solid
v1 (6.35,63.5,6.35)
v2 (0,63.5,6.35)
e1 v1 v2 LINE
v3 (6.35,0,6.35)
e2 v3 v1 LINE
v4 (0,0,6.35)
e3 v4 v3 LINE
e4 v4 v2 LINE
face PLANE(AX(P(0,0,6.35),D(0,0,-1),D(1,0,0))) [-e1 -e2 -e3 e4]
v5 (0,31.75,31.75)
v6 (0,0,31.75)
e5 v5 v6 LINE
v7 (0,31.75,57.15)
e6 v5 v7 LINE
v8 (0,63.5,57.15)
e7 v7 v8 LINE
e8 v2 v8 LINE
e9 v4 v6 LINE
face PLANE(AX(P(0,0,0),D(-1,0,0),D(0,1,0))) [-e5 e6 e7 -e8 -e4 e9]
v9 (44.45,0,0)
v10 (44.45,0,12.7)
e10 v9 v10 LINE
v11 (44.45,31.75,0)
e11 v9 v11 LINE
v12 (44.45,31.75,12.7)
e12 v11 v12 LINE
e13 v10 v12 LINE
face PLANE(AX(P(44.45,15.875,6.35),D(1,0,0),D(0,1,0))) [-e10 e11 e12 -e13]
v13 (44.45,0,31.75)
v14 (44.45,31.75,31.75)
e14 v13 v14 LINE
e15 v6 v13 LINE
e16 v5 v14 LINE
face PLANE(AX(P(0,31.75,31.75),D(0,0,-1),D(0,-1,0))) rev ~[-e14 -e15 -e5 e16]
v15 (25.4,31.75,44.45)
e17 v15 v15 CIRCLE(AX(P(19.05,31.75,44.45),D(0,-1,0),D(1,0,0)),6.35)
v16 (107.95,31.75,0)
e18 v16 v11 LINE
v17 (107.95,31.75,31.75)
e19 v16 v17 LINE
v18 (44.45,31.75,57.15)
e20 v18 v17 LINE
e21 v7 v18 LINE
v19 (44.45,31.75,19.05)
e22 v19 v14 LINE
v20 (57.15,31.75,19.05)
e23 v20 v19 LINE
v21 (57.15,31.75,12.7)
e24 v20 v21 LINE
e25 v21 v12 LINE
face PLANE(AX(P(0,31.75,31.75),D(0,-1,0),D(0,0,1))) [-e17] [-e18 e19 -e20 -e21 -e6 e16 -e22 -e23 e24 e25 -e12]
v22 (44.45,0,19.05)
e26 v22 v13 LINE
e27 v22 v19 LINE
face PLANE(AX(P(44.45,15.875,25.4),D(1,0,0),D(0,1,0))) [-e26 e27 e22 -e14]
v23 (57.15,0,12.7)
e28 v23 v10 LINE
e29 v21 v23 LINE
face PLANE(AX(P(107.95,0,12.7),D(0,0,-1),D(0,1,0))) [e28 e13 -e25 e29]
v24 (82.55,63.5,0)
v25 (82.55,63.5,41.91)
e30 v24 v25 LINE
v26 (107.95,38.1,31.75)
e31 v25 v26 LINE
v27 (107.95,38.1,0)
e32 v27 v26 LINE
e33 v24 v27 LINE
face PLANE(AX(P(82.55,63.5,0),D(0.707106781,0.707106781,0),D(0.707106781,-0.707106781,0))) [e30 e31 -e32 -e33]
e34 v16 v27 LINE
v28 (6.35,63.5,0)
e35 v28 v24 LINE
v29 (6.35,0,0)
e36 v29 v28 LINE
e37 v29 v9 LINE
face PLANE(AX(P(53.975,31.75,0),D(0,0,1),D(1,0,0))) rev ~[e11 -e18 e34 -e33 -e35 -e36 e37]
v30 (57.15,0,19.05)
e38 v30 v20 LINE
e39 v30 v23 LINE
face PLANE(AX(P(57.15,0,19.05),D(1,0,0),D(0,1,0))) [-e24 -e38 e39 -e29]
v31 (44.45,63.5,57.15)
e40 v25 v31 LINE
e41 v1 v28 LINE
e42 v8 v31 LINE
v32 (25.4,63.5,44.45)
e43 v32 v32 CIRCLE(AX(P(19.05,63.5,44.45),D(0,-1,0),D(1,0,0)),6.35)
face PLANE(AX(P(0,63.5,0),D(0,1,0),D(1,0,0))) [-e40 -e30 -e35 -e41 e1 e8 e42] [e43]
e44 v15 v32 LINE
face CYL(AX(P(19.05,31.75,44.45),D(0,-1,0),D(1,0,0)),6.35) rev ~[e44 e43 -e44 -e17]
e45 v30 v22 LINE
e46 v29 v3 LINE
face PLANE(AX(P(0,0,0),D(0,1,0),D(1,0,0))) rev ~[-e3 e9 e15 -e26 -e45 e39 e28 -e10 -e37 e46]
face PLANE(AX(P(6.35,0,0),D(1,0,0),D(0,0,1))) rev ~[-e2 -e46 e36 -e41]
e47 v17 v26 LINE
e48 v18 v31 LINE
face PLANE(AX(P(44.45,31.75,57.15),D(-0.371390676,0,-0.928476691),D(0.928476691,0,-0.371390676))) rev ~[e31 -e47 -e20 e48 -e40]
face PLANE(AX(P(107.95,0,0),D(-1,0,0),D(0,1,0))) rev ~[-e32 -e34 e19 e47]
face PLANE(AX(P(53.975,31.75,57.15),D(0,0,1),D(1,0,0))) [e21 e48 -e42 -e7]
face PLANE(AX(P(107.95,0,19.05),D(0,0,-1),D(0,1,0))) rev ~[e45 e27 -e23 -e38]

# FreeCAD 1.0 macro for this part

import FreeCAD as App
import Part
import Sketcher
from FreeCAD import Vector
Q = App.Units.Quantity

doc = App.newDocument("Part")
body = doc.addObject("PartDesign::Body", "Body")

sketch1 = body.newObject("Sketcher::SketchObject", "Sketch")
sketch1.AttachmentSupport = (doc.getObject("XY_Plane"), [""])
sketch1.MapMode = "FlatFace"
sketch1.addGeometry([
    Part.LineSegment(Vector(0, 63.5, 0), Vector(0, 0, 0)),
    Part.LineSegment(Vector(0, 0, 0), Vector(107.95, 0, 0)),
    Part.LineSegment(Vector(107.95, 0, 0), Vector(107.95, 63.5, 0)),
    Part.LineSegment(Vector(107.95, 63.5, 0), Vector(0, 63.5, 0)),
], False)
sketch1.addConstraint([
    Sketcher.Constraint("Coincident", 0, 2, 1, 1),
    Sketcher.Constraint("Coincident", 1, 2, 2, 1),
    Sketcher.Constraint("Coincident", 2, 2, 3, 1),
    Sketcher.Constraint("Coincident", 3, 2, 0, 1),
    Sketcher.Constraint("Vertical", 0),
    Sketcher.Constraint("Horizontal", 1),
    Sketcher.Constraint("Vertical", 2),
    Sketcher.Constraint("Horizontal", 3),
    Sketcher.Constraint("Coincident", 0, 2, -1, 1),
    Sketcher.Constraint("DistanceY", 0, 2, 0, 1, Q("2.5 in")),
    Sketcher.Constraint("DistanceX", 1, 1, 1, 2, Q("4.25 in")),
])
pad1 = body.newObject("PartDesign::Pad", "Pad")
pad1.Profile = sketch1
pad1.Length = Q("2.25 in")

sketch2 = body.newObject("Sketcher::SketchObject", "Sketch001")
sketch2.AttachmentSupport = (doc.getObject("YZ_Plane"), [""])
sketch2.MapMode = "FlatFace"
sketch2.addGeometry([
    Part.LineSegment(Vector(31.75, 57.15, 0), Vector(31.75, 31.75, 0)),
    Part.LineSegment(Vector(31.75, 31.75, 0), Vector(0, 31.75, 0)),
    Part.LineSegment(Vector(0, 31.75, 0), Vector(0, 57.15, 0)),
    Part.LineSegment(Vector(0, 57.15, 0), Vector(31.75, 57.15, 0)),
], False)
sketch2.addConstraint([
    Sketcher.Constraint("Coincident", 0, 2, 1, 1),
    Sketcher.Constraint("Coincident", 1, 2, 2, 1),
    Sketcher.Constraint("Coincident", 2, 2, 3, 1),
    Sketcher.Constraint("Coincident", 3, 2, 0, 1),
    Sketcher.Constraint("Vertical", 0),
    Sketcher.Constraint("Horizontal", 1),
    Sketcher.Constraint("Vertical", 2),
    Sketcher.Constraint("Horizontal", 3),
    Sketcher.Constraint("PointOnObject", 1, 2, -2),
    Sketcher.Constraint("DistanceY", 0, 2, 0, 1, Q("1 in")),
    Sketcher.Constraint("DistanceX", 1, 2, 1, 1, Q("1.25 in")),
    Sketcher.Constraint("DistanceY", -1, 1, 0, 2, Q("1.25 in")),
])
pocket1 = body.newObject("PartDesign::Pocket", "Pocket")
pocket1.Profile = sketch2
pocket1.Type = "ThroughAll"
pocket1.Reversed = True

sketch3 = body.newObject("Sketcher::SketchObject", "Sketch002")
sketch3.AttachmentSupport = (doc.getObject("YZ_Plane"), [""])
sketch3.MapMode = "FlatFace"
sketch3.AttachmentOffset = App.Placement(Vector(0, 0, 4.25 * 25.4), App.Rotation())
sketch3.addGeometry([
    Part.LineSegment(Vector(0, 31.75, 0), Vector(0, 19.05, 0)),
    Part.LineSegment(Vector(0, 19.05, 0), Vector(31.75, 19.05, 0)),
    Part.LineSegment(Vector(31.75, 19.05, 0), Vector(31.75, 31.75, 0)),
    Part.LineSegment(Vector(31.75, 31.75, 0), Vector(0, 31.75, 0)),
    Part.LineSegment(Vector(0, 12.7, 0), Vector(0, 0, 0)),
    Part.LineSegment(Vector(0, 0, 0), Vector(31.75, 0, 0)),
    Part.LineSegment(Vector(31.75, 0, 0), Vector(31.75, 12.7, 0)),
    Part.LineSegment(Vector(31.75, 12.7, 0), Vector(0, 12.7, 0)),
], False)
sketch3.addConstraint([
    Sketcher.Constraint("Coincident", 0, 2, 1, 1),
    Sketcher.Constraint("Coincident", 1, 2, 2, 1),
    Sketcher.Constraint("Coincident", 2, 2, 3, 1),
    Sketcher.Constraint("Coincident", 3, 2, 0, 1),
    Sketcher.Constraint("Coincident", 4, 2, 5, 1),
    Sketcher.Constraint("Coincident", 5, 2, 6, 1),
    Sketcher.Constraint("Coincident", 6, 2, 7, 1),
    Sketcher.Constraint("Coincident", 7, 2, 4, 1),
    Sketcher.Constraint("Vertical", 0),
    Sketcher.Constraint("Horizontal", 1),
    Sketcher.Constraint("Vertical", 2),
    Sketcher.Constraint("Horizontal", 3),
    Sketcher.Constraint("Vertical", 4),
    Sketcher.Constraint("Horizontal", 5),
    Sketcher.Constraint("Vertical", 6),
    Sketcher.Constraint("Horizontal", 7),
    Sketcher.Constraint("Coincident", 4, 2, -1, 1),
    Sketcher.Constraint("PointOnObject", 0, 2, -2),
    Sketcher.Constraint("Vertical", 2, 2, 5, 2),
    Sketcher.Constraint("Equal", 2, 4),
    Sketcher.Constraint("DistanceY", 0, 2, 0, 1, Q("0.5 in")),
    Sketcher.Constraint("DistanceX", 1, 1, 1, 2, Q("1.25 in")),
    Sketcher.Constraint("DistanceY", -1, 1, 0, 2, Q("0.75 in")),
])
pocket2 = body.newObject("PartDesign::Pocket", "Pocket001")
pocket2.Profile = sketch3
pocket2.Length = Q("2.5 in")

sketch4 = body.newObject("Sketcher::SketchObject", "Sketch003")
sketch4.AttachmentSupport = (doc.getObject("XY_Plane"), [""])
sketch4.MapMode = "FlatFace"
sketch4.AttachmentOffset = App.Placement(Vector(0, 0, 0.75 * 25.4), App.Rotation())
sketch4.addGeometry([
    Part.LineSegment(Vector(57.15, 31.75, 0), Vector(57.15, 0, 0)),
    Part.LineSegment(Vector(57.15, 0, 0), Vector(107.95, 0, 0)),
    Part.LineSegment(Vector(107.95, 0, 0), Vector(107.95, 31.75, 0)),
    Part.LineSegment(Vector(107.95, 31.75, 0), Vector(57.15, 31.75, 0)),
], False)
sketch4.addConstraint([
    Sketcher.Constraint("Coincident", 0, 2, 1, 1),
    Sketcher.Constraint("Coincident", 1, 2, 2, 1),
    Sketcher.Constraint("Coincident", 2, 2, 3, 1),
    Sketcher.Constraint("Coincident", 3, 2, 0, 1),
    Sketcher.Constraint("Vertical", 0),
    Sketcher.Constraint("Horizontal", 1),
    Sketcher.Constraint("Vertical", 2),
    Sketcher.Constraint("Horizontal", 3),
    Sketcher.Constraint("PointOnObject", 0, 2, -1),
    Sketcher.Constraint("DistanceX", 1, 1, 1, 2, Q("2 in")),
    Sketcher.Constraint("DistanceY", 0, 2, 0, 1, Q("1.25 in")),
    Sketcher.Constraint("DistanceX", -1, 1, 0, 2, Q("2.25 in")),
])
pocket3 = body.newObject("PartDesign::Pocket", "Pocket002")
pocket3.Profile = sketch4
pocket3.Length = Q("1 in")

sketch5 = body.newObject("Sketcher::SketchObject", "Sketch004")
sketch5.AttachmentSupport = (doc.getObject("XZ_Plane"), [""])
sketch5.MapMode = "FlatFace"
sketch5.AttachmentOffset = App.Placement(Vector(0, 0, -1.25 * 25.4), App.Rotation())
sketch5.addGeometry(Part.Circle(Vector(19.05, 44.45, 0), Vector(0, 0, 1), 6.35), False)
sketch5.addConstraint([
    Sketcher.Constraint("Diameter", 0, Q("0.5 in")),
    Sketcher.Constraint("DistanceX", -1, 1, 0, 3, Q("0.75 in")),
    Sketcher.Constraint("DistanceY", -1, 1, 0, 3, Q("1.75 in")),
])
pocket4 = body.newObject("PartDesign::Pocket", "Pocket003")
pocket4.Profile = sketch5
pocket4.Type = "ThroughAll"

sketch6 = body.newObject("Sketcher::SketchObject", "Sketch005")
sketch6.AttachmentSupport = (doc.getObject("XZ_Plane"), [""])
sketch6.MapMode = "FlatFace"
sketch6.addGeometry([
    Part.LineSegment(Vector(0, 6.35, 0), Vector(0, 0, 0)),
    Part.LineSegment(Vector(0, 0, 0), Vector(6.35, 0, 0)),
    Part.LineSegment(Vector(6.35, 0, 0), Vector(6.35, 6.35, 0)),
    Part.LineSegment(Vector(6.35, 6.35, 0), Vector(0, 6.35, 0)),
], False)
sketch6.addConstraint([
    Sketcher.Constraint("Coincident", 0, 2, 1, 1),
    Sketcher.Constraint("Coincident", 1, 2, 2, 1),
    Sketcher.Constraint("Coincident", 2, 2, 3, 1),
    Sketcher.Constraint("Coincident", 3, 2, 0, 1),
    Sketcher.Constraint("Vertical", 0),
    Sketcher.Constraint("Horizontal", 1),
    Sketcher.Constraint("Vertical", 2),
    Sketcher.Constraint("Horizontal", 3),
    Sketcher.Constraint("Coincident", 0, 2, -1, 1),
    Sketcher.Constraint("Equal", 3, 0),
    Sketcher.Constraint("DistanceX", 1, 1, 1, 2, Q("0.25 in")),
])
pocket5 = body.newObject("PartDesign::Pocket", "Pocket004")
pocket5.Profile = sketch6
pocket5.Type = "ThroughAll"

sketch7 = body.newObject("Sketcher::SketchObject", "Sketch006")
sketch7.AttachmentSupport = (doc.getObject("XZ_Plane"), [""])
sketch7.MapMode = "FlatFace"
sketch7.AttachmentOffset = App.Placement(Vector(0, 0, -1.25 * 25.4), App.Rotation())
sketch7.addGeometry([
    Part.LineSegment(Vector(107.95, 57.15, 0), Vector(44.45, 57.15, 0)),
    Part.LineSegment(Vector(44.45, 57.15, 0), Vector(107.95, 31.75, 0)),
    Part.LineSegment(Vector(107.95, 31.75, 0), Vector(107.95, 57.15, 0)),
], False)
sketch7.addConstraint([
    Sketcher.Constraint("Coincident", 0, 2, 1, 1),
    Sketcher.Constraint("Coincident", 1, 2, 2, 1),
    Sketcher.Constraint("Coincident", 2, 2, 0, 1),
    Sketcher.Constraint("Horizontal", 0),
    Sketcher.Constraint("Vertical", 2),
    Sketcher.Constraint("DistanceY", 2, 1, 2, 2, Q("1 in")),
    Sketcher.Constraint("DistanceX", 0, 2, 0, 1, Q("2.5 in")),
    Sketcher.Constraint("DistanceX", -1, 1, 0, 2, Q("1.75 in")),
    Sketcher.Constraint("DistanceY", -1, 1, 0, 2, Q("2.25 in")),
])
pocket6 = body.newObject("PartDesign::Pocket", "Pocket005")
pocket6.Profile = sketch7
pocket6.Type = "ThroughAll"

sketch8 = body.newObject("Sketcher::SketchObject", "Sketch007")
sketch8.AttachmentSupport = (doc.getObject("XY_Plane"), [""])
sketch8.MapMode = "FlatFace"
sketch8.addGeometry([
    Part.LineSegment(Vector(82.55, 63.5, 0), Vector(107.95, 38.1, 0)),
    Part.LineSegment(Vector(107.95, 38.1, 0), Vector(107.95, 63.5, 0)),
    Part.LineSegment(Vector(107.95, 63.5, 0), Vector(82.55, 63.5, 0)),
], False)
sketch8.addConstraint([
    Sketcher.Constraint("Coincident", 0, 2, 1, 1),
    Sketcher.Constraint("Coincident", 1, 2, 2, 1),
    Sketcher.Constraint("Coincident", 2, 2, 0, 1),
    Sketcher.Constraint("Vertical", 1),
    Sketcher.Constraint("Horizontal", 2),
    Sketcher.Constraint("Equal", 2, 1),
    Sketcher.Constraint("DistanceX", 2, 2, 2, 1, Q("1 in")),
    Sketcher.Constraint("DistanceY", -1, 1, 0, 2, Q("1.5 in")),
    Sketcher.Constraint("DistanceX", -1, 1, 0, 2, Q("4.25 in")),
])
pocket7 = body.newObject("PartDesign::Pocket", "Pocket006")
pocket7.Profile = sketch8
pocket7.Type = "ThroughAll"
pocket7.Reversed = True

doc.recompute()
